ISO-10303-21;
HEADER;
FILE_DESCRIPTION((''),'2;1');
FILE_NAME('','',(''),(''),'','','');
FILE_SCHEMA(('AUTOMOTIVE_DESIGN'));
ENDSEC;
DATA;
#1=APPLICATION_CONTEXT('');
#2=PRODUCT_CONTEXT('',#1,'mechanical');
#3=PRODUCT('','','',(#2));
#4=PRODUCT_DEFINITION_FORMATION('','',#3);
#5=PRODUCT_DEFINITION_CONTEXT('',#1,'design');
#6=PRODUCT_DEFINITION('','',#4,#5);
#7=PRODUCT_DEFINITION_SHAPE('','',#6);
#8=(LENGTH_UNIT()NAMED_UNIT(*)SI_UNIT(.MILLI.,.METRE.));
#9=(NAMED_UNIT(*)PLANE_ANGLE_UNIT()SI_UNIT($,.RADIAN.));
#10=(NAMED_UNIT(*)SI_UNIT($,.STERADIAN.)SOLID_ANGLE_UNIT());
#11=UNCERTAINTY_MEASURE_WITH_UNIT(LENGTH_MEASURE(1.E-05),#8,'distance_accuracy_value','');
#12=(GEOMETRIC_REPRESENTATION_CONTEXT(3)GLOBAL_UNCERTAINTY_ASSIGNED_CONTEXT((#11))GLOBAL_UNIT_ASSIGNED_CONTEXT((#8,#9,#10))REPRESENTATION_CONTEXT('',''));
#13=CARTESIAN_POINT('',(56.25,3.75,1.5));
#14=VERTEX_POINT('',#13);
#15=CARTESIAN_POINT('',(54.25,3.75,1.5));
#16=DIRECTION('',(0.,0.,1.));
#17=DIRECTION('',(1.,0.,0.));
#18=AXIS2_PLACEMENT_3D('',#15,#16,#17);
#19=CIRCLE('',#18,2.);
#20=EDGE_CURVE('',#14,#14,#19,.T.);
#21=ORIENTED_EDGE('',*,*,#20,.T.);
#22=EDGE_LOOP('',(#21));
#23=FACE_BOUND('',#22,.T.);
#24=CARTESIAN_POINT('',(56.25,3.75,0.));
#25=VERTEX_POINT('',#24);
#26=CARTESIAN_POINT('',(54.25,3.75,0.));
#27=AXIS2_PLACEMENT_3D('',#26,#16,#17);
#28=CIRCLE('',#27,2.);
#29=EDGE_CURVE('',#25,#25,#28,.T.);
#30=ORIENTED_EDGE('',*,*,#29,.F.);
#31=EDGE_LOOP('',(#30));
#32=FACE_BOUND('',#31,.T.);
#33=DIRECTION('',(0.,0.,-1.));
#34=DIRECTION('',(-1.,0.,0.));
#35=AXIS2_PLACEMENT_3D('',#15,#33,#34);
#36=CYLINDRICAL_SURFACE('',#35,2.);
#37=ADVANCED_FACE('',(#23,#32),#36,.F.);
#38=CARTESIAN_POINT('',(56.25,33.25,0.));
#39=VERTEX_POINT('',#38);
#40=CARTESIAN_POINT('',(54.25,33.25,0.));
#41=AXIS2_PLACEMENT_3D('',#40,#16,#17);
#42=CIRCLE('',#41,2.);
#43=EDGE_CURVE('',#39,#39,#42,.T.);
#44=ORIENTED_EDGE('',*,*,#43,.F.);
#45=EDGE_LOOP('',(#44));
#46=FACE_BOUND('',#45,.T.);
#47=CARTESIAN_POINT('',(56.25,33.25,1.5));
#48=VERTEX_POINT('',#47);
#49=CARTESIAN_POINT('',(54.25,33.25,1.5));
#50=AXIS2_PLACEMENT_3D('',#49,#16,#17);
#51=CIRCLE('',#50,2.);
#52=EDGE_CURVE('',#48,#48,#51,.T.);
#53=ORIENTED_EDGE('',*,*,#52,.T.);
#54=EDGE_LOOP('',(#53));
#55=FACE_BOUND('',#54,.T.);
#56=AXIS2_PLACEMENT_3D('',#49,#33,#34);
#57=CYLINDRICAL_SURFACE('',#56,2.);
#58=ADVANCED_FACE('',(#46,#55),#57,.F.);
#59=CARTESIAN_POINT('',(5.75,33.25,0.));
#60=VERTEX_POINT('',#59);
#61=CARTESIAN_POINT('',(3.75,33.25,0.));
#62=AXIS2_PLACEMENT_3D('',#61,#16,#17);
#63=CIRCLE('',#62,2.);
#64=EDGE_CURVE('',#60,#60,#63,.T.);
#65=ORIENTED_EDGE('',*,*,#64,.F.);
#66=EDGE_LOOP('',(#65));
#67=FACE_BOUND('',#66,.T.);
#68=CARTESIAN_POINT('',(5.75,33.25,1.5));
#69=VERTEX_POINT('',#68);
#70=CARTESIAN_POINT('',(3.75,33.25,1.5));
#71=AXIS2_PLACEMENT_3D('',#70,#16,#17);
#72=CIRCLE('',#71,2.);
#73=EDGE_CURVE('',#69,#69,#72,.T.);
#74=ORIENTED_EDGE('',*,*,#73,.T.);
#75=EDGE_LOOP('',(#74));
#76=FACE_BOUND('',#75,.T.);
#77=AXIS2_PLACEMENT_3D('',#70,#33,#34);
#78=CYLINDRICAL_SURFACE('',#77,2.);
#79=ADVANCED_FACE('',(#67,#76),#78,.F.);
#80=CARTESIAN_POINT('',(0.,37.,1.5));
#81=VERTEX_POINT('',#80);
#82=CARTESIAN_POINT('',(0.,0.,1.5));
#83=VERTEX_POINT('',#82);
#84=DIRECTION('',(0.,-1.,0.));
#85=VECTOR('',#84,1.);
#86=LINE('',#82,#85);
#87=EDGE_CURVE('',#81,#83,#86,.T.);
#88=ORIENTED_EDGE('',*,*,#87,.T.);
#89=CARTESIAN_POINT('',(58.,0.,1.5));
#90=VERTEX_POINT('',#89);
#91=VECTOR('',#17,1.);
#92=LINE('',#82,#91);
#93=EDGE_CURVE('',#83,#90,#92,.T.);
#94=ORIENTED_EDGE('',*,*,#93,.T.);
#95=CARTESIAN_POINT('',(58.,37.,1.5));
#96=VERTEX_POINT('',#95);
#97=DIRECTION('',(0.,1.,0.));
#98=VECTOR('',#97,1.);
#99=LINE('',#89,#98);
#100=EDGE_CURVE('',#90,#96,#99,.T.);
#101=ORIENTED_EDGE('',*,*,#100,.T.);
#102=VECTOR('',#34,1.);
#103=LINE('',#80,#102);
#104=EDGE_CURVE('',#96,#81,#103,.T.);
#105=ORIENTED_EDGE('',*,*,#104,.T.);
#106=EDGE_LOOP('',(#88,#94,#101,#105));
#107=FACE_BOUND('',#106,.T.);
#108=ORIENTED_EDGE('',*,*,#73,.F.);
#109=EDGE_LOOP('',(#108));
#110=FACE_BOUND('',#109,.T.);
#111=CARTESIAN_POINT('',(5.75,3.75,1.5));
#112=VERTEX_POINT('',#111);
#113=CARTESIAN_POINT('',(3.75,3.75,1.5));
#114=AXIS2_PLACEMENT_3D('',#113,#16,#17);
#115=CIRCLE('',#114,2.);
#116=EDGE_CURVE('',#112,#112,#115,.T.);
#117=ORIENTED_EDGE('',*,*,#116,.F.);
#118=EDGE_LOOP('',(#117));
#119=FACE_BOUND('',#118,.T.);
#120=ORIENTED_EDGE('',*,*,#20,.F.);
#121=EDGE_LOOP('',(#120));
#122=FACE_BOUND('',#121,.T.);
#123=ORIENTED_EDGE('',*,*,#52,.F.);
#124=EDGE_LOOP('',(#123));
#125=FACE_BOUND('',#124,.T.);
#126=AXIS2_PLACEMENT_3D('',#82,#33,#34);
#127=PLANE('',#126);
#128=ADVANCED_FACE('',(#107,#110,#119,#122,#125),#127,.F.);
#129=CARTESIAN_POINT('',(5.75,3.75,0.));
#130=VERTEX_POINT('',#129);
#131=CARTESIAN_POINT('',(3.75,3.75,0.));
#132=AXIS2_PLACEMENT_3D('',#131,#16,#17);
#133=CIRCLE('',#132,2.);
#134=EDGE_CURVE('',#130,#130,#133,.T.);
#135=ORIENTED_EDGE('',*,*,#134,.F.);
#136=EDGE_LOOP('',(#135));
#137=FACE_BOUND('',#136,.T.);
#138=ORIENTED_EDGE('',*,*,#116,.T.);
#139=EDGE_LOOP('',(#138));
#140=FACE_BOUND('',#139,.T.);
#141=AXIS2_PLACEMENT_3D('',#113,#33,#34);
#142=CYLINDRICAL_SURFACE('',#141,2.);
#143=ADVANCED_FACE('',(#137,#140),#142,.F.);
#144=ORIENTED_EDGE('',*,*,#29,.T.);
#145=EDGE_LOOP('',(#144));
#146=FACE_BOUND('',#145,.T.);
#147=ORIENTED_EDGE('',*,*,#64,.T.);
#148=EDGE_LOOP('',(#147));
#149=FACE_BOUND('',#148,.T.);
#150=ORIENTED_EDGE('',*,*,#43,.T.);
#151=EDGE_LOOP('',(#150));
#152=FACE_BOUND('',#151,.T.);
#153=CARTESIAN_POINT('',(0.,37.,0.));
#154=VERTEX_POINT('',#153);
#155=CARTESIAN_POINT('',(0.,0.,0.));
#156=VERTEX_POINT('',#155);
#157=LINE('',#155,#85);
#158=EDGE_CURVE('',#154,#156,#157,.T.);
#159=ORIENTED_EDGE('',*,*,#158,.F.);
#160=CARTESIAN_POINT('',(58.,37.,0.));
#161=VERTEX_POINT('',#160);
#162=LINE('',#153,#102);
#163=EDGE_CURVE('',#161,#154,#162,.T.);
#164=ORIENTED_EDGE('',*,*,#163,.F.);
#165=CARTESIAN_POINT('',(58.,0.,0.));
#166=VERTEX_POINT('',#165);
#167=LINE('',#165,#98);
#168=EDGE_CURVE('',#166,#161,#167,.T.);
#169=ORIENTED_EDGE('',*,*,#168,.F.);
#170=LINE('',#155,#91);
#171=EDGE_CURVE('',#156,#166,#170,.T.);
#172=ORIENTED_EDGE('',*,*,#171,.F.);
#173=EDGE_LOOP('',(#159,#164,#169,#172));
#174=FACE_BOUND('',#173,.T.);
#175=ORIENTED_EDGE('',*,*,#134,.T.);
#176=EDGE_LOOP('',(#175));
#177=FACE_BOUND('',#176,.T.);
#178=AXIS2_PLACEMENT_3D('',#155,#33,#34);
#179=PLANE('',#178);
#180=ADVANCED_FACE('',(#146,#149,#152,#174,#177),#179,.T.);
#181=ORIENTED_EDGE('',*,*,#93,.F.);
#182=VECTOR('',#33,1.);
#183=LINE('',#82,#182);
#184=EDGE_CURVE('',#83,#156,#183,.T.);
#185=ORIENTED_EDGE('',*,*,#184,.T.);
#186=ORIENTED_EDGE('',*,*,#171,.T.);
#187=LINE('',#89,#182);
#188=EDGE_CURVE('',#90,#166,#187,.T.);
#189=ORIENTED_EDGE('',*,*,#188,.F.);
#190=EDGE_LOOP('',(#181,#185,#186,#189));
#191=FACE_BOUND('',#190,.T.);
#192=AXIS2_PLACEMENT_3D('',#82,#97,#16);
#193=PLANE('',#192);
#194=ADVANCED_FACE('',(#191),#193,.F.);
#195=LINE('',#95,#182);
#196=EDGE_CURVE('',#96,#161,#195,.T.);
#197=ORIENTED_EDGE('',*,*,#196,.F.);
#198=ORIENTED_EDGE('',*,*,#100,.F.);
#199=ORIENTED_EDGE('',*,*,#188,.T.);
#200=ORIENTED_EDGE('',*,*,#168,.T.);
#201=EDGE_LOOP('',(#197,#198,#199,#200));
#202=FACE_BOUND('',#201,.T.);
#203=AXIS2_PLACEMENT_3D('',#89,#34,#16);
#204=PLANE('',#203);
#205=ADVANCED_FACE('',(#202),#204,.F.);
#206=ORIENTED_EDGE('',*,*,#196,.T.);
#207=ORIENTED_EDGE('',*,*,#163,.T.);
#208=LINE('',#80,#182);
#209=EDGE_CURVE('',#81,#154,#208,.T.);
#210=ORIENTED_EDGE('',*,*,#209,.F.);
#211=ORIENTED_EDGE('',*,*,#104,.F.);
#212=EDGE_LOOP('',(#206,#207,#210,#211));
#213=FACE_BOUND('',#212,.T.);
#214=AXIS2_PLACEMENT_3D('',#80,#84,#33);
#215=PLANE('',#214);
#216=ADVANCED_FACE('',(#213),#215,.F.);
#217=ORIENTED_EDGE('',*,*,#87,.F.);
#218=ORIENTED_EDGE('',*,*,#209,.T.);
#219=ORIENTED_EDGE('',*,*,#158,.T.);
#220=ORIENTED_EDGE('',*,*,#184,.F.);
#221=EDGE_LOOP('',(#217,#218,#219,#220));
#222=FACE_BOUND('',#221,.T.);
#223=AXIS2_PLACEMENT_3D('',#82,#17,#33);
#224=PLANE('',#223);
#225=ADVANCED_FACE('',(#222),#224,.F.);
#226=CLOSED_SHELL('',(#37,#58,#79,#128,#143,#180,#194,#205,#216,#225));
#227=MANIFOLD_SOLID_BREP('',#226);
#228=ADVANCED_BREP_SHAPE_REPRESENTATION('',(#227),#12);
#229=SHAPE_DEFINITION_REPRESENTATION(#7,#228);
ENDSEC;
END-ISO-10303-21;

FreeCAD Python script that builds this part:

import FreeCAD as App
import Part
import Sketcher

V = App.Vector

doc = App.newDocument("Part")
body = doc.addObject("PartDesign::Body", "Body")

sketch1 = body.newObject("Sketcher::SketchObject", "Sketch")
sketch1.AttachmentSupport = (doc.getObject("XY_Plane"), [""])
sketch1.MapMode = "FlatFace"
sketch1.addGeometry([
    Part.LineSegment(V(0, 37, 0), V(0, 0, 0)),
    Part.LineSegment(V(0, 0, 0), V(58, 0, 0)),
    Part.LineSegment(V(58, 0, 0), V(58, 37, 0)),
    Part.LineSegment(V(58, 37, 0), V(0, 37, 0)),
    Part.Circle(V(3.8, 3.8, 0), V(0, 0, 1), 2),
    Part.Circle(V(54.2, 3.8, 0), V(0, 0, 1), 2),
    Part.Circle(V(3.8, 33.2, 0), V(0, 0, 1), 2),
    Part.Circle(V(54.2, 33.2, 0), V(0, 0, 1), 2),
], False)
sketch1.addConstraint([
    Sketcher.Constraint("Coincident", 0, 2, 1, 1),
    Sketcher.Constraint("Coincident", 1, 2, 2, 1),
    Sketcher.Constraint("Coincident", 2, 2, 3, 1),
    Sketcher.Constraint("Coincident", 3, 2, 0, 1),
    Sketcher.Constraint("Vertical", 0),
    Sketcher.Constraint("Horizontal", 1),
    Sketcher.Constraint("Vertical", 2),
    Sketcher.Constraint("Horizontal", 3),
    Sketcher.Constraint("Coincident", 0, 2, -1, 1),
    Sketcher.Constraint("Equal", 4, 5),
    Sketcher.Constraint("Equal", 5, 6),
    Sketcher.Constraint("Equal", 6, 7),
    Sketcher.Constraint("Horizontal", 4, 3, 5, 3),
    Sketcher.Constraint("Horizontal", 6, 3, 7, 3),
    Sketcher.Constraint("Vertical", 4, 3, 6, 3),
    Sketcher.Constraint("Vertical", 5, 3, 7, 3),
    Sketcher.Constraint("Diameter", 4, 4.0),
    Sketcher.Constraint("DistanceX", 1, 1, 1, 2, 58.0),
    Sketcher.Constraint("DistanceY", 0, 2, 0, 1, 37.0),
    Sketcher.Constraint("DistanceX", 4, 3, 5, 3, 50.5),
    Sketcher.Constraint("DistanceY", 4, 3, 6, 3, 29.5),
    Sketcher.Constraint("DistanceX", -1, 1, 4, 3, 3.75),
    Sketcher.Constraint("DistanceY", -1, 1, 4, 3, 3.75),
])
pad1 = body.newObject("PartDesign::Pad", "Pad")
pad1.Profile = sketch1
pad1.Length = 1.5

doc.recompute()
